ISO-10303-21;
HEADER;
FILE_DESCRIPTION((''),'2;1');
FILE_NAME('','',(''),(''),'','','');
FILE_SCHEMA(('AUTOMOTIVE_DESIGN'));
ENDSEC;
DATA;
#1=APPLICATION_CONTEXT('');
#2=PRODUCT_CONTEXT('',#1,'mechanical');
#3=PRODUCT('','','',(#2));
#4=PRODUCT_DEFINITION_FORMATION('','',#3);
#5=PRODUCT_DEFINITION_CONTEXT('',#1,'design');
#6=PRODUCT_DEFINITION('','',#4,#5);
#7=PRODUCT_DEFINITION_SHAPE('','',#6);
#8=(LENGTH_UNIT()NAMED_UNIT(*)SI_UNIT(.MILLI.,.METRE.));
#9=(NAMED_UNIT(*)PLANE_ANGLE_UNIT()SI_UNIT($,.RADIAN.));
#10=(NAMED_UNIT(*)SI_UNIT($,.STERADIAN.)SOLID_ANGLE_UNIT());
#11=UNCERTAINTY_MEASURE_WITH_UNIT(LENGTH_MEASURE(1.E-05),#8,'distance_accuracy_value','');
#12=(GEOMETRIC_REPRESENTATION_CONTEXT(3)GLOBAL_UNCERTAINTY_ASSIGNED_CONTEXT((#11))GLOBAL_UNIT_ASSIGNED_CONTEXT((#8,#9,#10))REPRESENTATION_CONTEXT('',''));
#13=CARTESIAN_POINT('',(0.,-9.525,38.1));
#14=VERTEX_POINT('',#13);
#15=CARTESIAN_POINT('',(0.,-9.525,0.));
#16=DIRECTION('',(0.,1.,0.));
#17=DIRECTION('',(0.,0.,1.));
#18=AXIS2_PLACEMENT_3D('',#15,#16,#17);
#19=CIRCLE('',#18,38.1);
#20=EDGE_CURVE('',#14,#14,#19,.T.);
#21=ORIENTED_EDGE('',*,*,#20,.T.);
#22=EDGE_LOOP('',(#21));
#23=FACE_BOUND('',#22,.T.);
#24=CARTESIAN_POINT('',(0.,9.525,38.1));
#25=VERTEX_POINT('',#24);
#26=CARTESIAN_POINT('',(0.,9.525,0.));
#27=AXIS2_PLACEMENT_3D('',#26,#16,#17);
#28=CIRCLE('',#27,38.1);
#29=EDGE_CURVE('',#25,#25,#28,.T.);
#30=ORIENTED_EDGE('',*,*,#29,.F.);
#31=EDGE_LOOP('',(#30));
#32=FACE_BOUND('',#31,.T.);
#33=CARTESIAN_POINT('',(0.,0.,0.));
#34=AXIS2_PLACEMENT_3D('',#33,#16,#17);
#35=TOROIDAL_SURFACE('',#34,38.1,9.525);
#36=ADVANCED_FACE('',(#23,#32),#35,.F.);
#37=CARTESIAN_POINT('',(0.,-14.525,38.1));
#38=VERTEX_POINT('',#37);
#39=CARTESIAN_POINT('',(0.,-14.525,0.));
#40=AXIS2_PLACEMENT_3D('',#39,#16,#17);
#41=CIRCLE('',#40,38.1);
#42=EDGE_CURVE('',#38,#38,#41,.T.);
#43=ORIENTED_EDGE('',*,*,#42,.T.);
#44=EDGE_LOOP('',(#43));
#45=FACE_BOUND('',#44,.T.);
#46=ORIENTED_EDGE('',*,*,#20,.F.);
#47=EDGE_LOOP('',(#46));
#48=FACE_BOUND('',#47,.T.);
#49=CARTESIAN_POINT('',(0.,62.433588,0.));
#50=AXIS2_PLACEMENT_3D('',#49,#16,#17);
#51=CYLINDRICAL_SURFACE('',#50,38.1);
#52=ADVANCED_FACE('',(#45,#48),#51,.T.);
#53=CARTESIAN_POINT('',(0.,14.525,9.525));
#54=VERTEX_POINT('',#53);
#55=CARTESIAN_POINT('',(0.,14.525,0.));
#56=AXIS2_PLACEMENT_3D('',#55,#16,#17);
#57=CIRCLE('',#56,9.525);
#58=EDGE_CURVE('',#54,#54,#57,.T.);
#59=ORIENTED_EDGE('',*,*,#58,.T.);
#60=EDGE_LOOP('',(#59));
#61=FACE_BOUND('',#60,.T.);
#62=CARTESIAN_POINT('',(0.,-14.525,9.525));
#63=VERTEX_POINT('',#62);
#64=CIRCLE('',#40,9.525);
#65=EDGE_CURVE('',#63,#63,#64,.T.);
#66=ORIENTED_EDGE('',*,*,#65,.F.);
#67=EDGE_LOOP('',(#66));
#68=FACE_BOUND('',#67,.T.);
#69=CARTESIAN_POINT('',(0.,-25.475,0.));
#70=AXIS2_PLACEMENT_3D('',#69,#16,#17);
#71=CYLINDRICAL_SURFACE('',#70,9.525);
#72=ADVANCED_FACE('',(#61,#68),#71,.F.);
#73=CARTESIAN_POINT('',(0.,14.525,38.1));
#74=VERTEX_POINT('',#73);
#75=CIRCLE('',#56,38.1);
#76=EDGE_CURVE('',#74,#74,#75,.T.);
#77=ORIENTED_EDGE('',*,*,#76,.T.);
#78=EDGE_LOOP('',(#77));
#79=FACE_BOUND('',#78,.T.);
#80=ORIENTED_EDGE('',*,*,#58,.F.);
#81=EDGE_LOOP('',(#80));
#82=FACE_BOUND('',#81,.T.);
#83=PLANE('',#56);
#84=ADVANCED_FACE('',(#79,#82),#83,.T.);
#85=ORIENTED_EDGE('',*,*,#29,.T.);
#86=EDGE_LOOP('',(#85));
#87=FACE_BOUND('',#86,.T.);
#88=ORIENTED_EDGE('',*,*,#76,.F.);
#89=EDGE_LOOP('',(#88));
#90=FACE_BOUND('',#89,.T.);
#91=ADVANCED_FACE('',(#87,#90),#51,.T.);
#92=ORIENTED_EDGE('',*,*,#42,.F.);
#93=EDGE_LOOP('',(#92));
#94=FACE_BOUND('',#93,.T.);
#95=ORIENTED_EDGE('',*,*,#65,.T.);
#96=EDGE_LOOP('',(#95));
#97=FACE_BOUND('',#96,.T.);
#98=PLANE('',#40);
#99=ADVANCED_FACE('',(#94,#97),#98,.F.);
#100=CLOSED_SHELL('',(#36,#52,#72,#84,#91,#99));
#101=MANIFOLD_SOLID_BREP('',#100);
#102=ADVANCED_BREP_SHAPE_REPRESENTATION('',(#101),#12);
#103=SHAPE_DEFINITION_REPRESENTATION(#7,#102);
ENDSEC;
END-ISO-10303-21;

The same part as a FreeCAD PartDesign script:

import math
import FreeCAD as App
import Part
import Sketcher
from FreeCAD import Vector
Q = App.Units.Quantity

doc = App.newDocument("Part")
params = doc.addObject("Spreadsheet::Sheet", "Params")
for row, (alias, value) in enumerate([
    ("sketch1_height", "5 mm"),
    ("sketch1_width", "38.1 mm"),
    ("revolution_angle", "360 deg"),
    ("sketch2_diameter", "19.05 mm"),
    ("pocket1_length", "40 mm"),
], start=1):
    params.set(f"A{row}", alias)
    params.set(f"B{row}", "=" + value)
    params.setAlias(f"B{row}", alias)

body = doc.addObject("PartDesign::Body", "Body")

sketch1 = doc.addObject("Sketcher::SketchObject", "Sketch")
body.addObject(sketch1)
sketch1.AttachmentSupport = (doc.XY_Plane, [""])
sketch1.MapMode = "FlatFace"
sketch1.addGeometry(Part.LineSegment(Vector(0, 15, 0), Vector(-38, 15, 0)), False)
sketch1.addGeometry(Part.LineSegment(Vector(-38, 15, 0), Vector(-38, 10, 0)), False)
sketch1.addGeometry(Part.ArcOfCircle(Part.Circle(Vector(-38, 0, 0), Vector(0, 0, 1), 10), math.radians(0), math.radians(90)), False)
sketch1.addGeometry(Part.ArcOfCircle(Part.Circle(Vector(-38, 0, 0), Vector(0, 0, 1), 10), math.radians(-90), math.radians(0)), False)
sketch1.addGeometry(Part.LineSegment(Vector(-38, -10, 0), Vector(-38, -15, 0)), False)
sketch1.addGeometry(Part.LineSegment(Vector(-38, -15, 0), Vector(0, -15, 0)), False)
sketch1.addGeometry(Part.LineSegment(Vector(0, -15, 0), Vector(0, 15, 0)), False)
sketch1.addConstraint(Sketcher.Constraint("Coincident", 0, 2, 1, 1))
sketch1.addConstraint(Sketcher.Constraint("Coincident", 1, 2, 2, 2))
sketch1.addConstraint(Sketcher.Constraint("Tangent", 2, 1, 3, 2))
sketch1.addConstraint(Sketcher.Constraint("Coincident", 3, 1, 4, 1))
sketch1.addConstraint(Sketcher.Constraint("Coincident", 4, 2, 5, 1))
sketch1.addConstraint(Sketcher.Constraint("Coincident", 5, 2, 6, 1))
sketch1.addConstraint(Sketcher.Constraint("Coincident", 6, 2, 0, 1))
sketch1.addConstraint(Sketcher.Constraint("Horizontal", 0))
sketch1.addConstraint(Sketcher.Constraint("Vertical", 1))
sketch1.addConstraint(Sketcher.Constraint("Vertical", 4))
sketch1.addConstraint(Sketcher.Constraint("Horizontal", 5))
sketch1.addConstraint(Sketcher.Constraint("Vertical", 6))
sketch1.addConstraint(Sketcher.Constraint("Equal", 2, 3))
sketch1.addConstraint(Sketcher.Constraint("Symmetric", 5, 2, 6, 2, -1, 1))
sketch1.addConstraint(Sketcher.Constraint("Symmetric", 1, 2, 3, 1, -1))
sketch1.addConstraint(Sketcher.Constraint("PointOnObject", 2, 1, -1))
sketch1.addConstraint(Sketcher.Constraint("Vertical", 3, 3, 0, 2))
sketch1.addConstraint(Sketcher.Constraint("DistanceY", 1, 2, 1, 1, Q("5 mm")))
sketch1.addConstraint(Sketcher.Constraint("DistanceX", 0, 2, 0, 1, Q("38.1 mm")))
sketch1.addConstraint(Sketcher.Constraint("Radius", 2, Q("9.525 mm")))
sketch1.setExpression("Constraints[17]", "Params.sketch1_height")
sketch1.setExpression("Constraints[18]", "Params.sketch1_width")
revolution = doc.addObject("PartDesign::Revolution", "Revolution")
body.addObject(revolution)
revolution.Profile = sketch1
revolution.ReferenceAxis = (sketch1, ["V_Axis"])
revolution.setExpression("Angle", "Params.revolution_angle")

sketch2 = doc.addObject("Sketcher::SketchObject", "Sketch001")
body.addObject(sketch2)
sketch2.AttachmentSupport = (doc.XZ_Plane, [""])
sketch2.MapMode = "FlatFace"
sketch2.AttachmentOffset = App.Placement(Vector(0, 0, -14.525), App.Rotation())
sketch2.addGeometry(Part.Circle(Vector(0, 0, 0), Vector(0, 0, 1), 10), False)
sketch2.addConstraint(Sketcher.Constraint("Coincident", 0, 3, -1, 1))
sketch2.addConstraint(Sketcher.Constraint("Diameter", 0, Q("19.05 mm")))
sketch2.setExpression("Constraints[1]", "Params.sketch2_diameter")
pocket1 = doc.addObject("PartDesign::Pocket", "Pocket")
body.addObject(pocket1)
pocket1.Profile = sketch2
pocket1.setExpression("Length", "Params.pocket1_length")
pocket1.Reversed = True

doc.recompute()
